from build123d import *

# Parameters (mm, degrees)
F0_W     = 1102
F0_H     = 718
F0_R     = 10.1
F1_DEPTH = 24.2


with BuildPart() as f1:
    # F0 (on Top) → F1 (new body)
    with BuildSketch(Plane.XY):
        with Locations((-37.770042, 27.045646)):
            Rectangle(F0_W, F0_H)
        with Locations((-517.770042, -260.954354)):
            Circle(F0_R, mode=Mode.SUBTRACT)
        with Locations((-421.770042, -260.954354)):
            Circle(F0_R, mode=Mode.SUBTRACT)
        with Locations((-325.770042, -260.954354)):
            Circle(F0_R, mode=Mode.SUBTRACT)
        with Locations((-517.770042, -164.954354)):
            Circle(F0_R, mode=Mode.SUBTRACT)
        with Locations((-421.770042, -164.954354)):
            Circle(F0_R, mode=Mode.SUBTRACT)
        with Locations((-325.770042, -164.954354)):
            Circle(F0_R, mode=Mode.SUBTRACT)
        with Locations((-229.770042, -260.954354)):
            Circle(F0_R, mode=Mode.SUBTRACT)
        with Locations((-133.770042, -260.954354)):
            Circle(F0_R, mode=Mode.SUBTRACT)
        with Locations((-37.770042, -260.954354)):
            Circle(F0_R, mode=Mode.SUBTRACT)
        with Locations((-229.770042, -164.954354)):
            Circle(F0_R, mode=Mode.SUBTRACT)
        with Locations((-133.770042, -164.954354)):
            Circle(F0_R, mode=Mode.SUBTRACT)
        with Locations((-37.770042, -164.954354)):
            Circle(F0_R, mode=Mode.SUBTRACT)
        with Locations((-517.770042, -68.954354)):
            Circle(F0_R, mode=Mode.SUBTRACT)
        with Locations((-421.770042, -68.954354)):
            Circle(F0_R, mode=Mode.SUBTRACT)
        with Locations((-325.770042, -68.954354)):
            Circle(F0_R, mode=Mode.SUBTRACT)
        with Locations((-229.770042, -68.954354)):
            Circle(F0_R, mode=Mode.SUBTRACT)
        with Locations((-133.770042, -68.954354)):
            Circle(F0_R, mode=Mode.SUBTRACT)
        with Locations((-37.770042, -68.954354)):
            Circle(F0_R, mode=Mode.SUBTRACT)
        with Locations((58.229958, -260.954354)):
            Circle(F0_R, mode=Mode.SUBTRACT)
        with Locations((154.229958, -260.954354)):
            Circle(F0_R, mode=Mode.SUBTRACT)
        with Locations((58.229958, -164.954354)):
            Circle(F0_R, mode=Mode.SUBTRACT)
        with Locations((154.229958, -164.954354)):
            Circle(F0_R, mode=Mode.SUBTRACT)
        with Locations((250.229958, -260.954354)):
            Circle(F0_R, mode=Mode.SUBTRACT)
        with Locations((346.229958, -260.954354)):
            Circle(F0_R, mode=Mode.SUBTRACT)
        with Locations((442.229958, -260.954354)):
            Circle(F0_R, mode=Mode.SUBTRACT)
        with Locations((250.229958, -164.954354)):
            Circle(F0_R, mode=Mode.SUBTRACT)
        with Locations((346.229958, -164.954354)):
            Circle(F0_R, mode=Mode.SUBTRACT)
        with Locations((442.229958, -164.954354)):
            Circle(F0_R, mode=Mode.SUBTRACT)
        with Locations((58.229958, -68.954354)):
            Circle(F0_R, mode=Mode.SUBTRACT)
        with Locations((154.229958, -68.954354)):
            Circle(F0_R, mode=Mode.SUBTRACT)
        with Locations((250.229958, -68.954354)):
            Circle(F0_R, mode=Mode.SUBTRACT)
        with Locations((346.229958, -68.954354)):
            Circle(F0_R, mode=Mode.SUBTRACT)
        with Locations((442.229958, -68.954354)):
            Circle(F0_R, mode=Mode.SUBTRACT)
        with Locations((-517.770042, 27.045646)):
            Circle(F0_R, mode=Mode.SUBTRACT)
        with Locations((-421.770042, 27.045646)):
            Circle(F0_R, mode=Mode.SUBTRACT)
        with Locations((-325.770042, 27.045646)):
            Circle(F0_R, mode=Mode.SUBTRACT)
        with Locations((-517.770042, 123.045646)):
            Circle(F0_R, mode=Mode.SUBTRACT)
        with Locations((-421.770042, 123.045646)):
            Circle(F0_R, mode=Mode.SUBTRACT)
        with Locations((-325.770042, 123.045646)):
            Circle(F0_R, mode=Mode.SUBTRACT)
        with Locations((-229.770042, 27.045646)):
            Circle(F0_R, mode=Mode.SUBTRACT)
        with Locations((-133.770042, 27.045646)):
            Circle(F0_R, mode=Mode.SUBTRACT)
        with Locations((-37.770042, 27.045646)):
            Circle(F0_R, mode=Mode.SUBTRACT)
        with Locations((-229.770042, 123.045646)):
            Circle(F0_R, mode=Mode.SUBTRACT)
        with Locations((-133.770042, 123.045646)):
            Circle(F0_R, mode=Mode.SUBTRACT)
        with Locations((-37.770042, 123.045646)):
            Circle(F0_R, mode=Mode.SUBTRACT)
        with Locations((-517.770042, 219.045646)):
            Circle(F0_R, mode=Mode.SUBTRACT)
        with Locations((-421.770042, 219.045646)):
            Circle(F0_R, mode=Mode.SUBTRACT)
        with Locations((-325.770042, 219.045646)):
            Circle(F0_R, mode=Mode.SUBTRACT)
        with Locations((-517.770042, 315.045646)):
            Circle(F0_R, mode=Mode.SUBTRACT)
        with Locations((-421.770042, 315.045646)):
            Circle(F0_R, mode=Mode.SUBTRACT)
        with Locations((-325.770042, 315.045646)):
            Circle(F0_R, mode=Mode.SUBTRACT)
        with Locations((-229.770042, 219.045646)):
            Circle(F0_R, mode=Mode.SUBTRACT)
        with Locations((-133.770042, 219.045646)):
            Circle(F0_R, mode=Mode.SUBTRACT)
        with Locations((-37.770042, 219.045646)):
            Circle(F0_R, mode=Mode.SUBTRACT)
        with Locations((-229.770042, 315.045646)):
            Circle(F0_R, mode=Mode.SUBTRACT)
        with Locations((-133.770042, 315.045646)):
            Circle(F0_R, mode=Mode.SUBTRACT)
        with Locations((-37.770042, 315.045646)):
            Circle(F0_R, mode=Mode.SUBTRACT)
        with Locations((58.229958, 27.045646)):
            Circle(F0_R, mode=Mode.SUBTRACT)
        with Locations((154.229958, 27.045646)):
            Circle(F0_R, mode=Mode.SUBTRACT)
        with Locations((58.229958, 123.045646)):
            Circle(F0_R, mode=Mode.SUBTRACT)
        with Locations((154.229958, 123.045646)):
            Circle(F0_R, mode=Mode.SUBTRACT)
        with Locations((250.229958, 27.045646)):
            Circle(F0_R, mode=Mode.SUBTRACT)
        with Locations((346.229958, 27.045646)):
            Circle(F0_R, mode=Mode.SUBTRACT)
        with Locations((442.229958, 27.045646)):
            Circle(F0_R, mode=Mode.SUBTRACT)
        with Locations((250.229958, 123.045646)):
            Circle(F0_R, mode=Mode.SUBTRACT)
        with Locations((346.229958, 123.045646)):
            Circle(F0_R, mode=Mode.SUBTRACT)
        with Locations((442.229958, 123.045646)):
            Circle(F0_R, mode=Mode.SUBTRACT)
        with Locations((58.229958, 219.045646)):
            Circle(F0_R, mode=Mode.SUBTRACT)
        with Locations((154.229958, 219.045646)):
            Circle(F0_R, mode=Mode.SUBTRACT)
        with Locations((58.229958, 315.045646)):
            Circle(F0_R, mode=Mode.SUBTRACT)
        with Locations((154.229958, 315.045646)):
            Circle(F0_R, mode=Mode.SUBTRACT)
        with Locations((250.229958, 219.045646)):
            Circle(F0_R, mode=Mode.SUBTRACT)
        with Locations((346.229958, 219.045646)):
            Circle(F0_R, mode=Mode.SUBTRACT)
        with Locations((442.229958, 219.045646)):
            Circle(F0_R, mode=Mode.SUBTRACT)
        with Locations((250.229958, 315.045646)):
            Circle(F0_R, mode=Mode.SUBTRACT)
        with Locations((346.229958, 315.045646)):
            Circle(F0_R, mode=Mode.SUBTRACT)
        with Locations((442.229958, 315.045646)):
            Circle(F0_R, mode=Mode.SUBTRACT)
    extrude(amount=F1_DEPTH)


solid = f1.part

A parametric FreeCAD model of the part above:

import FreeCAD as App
import Part
import Sketcher
Q = App.Units.Quantity

doc = App.newDocument("Part")
body = doc.addObject("PartDesign::Body", "Body")

# Sketch on XY plane
sketch1 = body.newObject("Sketcher::SketchObject", "Sketch")
sketch1.AttachmentSupport = (doc.getObject("XY_Plane"), [""])
sketch1.MapMode = "FlatFace"
sketch1.addGeometry([
    Part.LineSegment(App.Vector(-588.770042, 386.045646, 0), App.Vector(-588.770042, -331.954354, 0)),  # 0
    Part.LineSegment(App.Vector(-588.770042, -331.954354, 0), App.Vector(513.229958, -331.954354, 0)),  # 1
    Part.LineSegment(App.Vector(513.229958, -331.954354, 0), App.Vector(513.229958, 386.045646, 0)),  # 2
    Part.LineSegment(App.Vector(513.229958, 386.045646, 0), App.Vector(-588.770042, 386.045646, 0)),  # 3
    Part.Circle(App.Vector(-517.770042, -260.954354, 0), App.Vector(0, 0, 1), 10.1),  # 4
    Part.Circle(App.Vector(-421.770042, -260.954354, 0), App.Vector(0, 0, 1), 10.1),  # 5
    Part.Circle(App.Vector(-325.770042, -260.954354, 0), App.Vector(0, 0, 1), 10.1),  # 6
    Part.Circle(App.Vector(-517.770042, -164.954354, 0), App.Vector(0, 0, 1), 10.1),  # 7
    Part.Circle(App.Vector(-421.770042, -164.954354, 0), App.Vector(0, 0, 1), 10.1),  # 8
    Part.Circle(App.Vector(-325.770042, -164.954354, 0), App.Vector(0, 0, 1), 10.1),  # 9
    Part.Circle(App.Vector(-229.770042, -260.954354, 0), App.Vector(0, 0, 1), 10.1),  # 10
    Part.Circle(App.Vector(-133.770042, -260.954354, 0), App.Vector(0, 0, 1), 10.1),  # 11
    Part.Circle(App.Vector(-37.770042, -260.954354, 0), App.Vector(0, 0, 1), 10.1),  # 12
    Part.Circle(App.Vector(-229.770042, -164.954354, 0), App.Vector(0, 0, 1), 10.1),  # 13
    Part.Circle(App.Vector(-133.770042, -164.954354, 0), App.Vector(0, 0, 1), 10.1),  # 14
    Part.Circle(App.Vector(-37.770042, -164.954354, 0), App.Vector(0, 0, 1), 10.1),  # 15
    Part.Circle(App.Vector(-517.770042, -68.954354, 0), App.Vector(0, 0, 1), 10.1),  # 16
    Part.Circle(App.Vector(-421.770042, -68.954354, 0), App.Vector(0, 0, 1), 10.1),  # 17
    Part.Circle(App.Vector(-325.770042, -68.954354, 0), App.Vector(0, 0, 1), 10.1),  # 18
    Part.Circle(App.Vector(-229.770042, -68.954354, 0), App.Vector(0, 0, 1), 10.1),  # 19
    Part.Circle(App.Vector(-133.770042, -68.954354, 0), App.Vector(0, 0, 1), 10.1),  # 20
    Part.Circle(App.Vector(-37.770042, -68.954354, 0), App.Vector(0, 0, 1), 10.1),  # 21
    Part.Circle(App.Vector(58.229958, -260.954354, 0), App.Vector(0, 0, 1), 10.1),  # 22
    Part.Circle(App.Vector(154.229958, -260.954354, 0), App.Vector(0, 0, 1), 10.1),  # 23
    Part.Circle(App.Vector(58.229958, -164.954354, 0), App.Vector(0, 0, 1), 10.1),  # 24
    Part.Circle(App.Vector(154.229958, -164.954354, 0), App.Vector(0, 0, 1), 10.1),  # 25
    Part.Circle(App.Vector(250.229958, -260.954354, 0), App.Vector(0, 0, 1), 10.1),  # 26
    Part.Circle(App.Vector(346.229958, -260.954354, 0), App.Vector(0, 0, 1), 10.1),  # 27
    Part.Circle(App.Vector(442.229958, -260.954354, 0), App.Vector(0, 0, 1), 10.1),  # 28
    Part.Circle(App.Vector(250.229958, -164.954354, 0), App.Vector(0, 0, 1), 10.1),  # 29
    Part.Circle(App.Vector(346.229958, -164.954354, 0), App.Vector(0, 0, 1), 10.1),  # 30
    Part.Circle(App.Vector(442.229958, -164.954354, 0), App.Vector(0, 0, 1), 10.1),  # 31
    Part.Circle(App.Vector(58.229958, -68.954354, 0), App.Vector(0, 0, 1), 10.1),  # 32
    Part.Circle(App.Vector(154.229958, -68.954354, 0), App.Vector(0, 0, 1), 10.1),  # 33
    Part.Circle(App.Vector(250.229958, -68.954354, 0), App.Vector(0, 0, 1), 10.1),  # 34
    Part.Circle(App.Vector(346.229958, -68.954354, 0), App.Vector(0, 0, 1), 10.1),  # 35
    Part.Circle(App.Vector(442.229958, -68.954354, 0), App.Vector(0, 0, 1), 10.1),  # 36
    Part.Circle(App.Vector(-517.770042, 27.045646, 0), App.Vector(0, 0, 1), 10.1),  # 37
    Part.Circle(App.Vector(-421.770042, 27.045646, 0), App.Vector(0, 0, 1), 10.1),  # 38
    Part.Circle(App.Vector(-325.770042, 27.045646, 0), App.Vector(0, 0, 1), 10.1),  # 39
    Part.Circle(App.Vector(-517.770042, 123.045646, 0), App.Vector(0, 0, 1), 10.1),  # 40
    Part.Circle(App.Vector(-421.770042, 123.045646, 0), App.Vector(0, 0, 1), 10.1),  # 41
    Part.Circle(App.Vector(-325.770042, 123.045646, 0), App.Vector(0, 0, 1), 10.1),  # 42
    Part.Circle(App.Vector(-229.770042, 27.045646, 0), App.Vector(0, 0, 1), 10.1),  # 43
    Part.Circle(App.Vector(-133.770042, 27.045646, 0), App.Vector(0, 0, 1), 10.1),  # 44
    Part.Circle(App.Vector(-37.770042, 27.045646, 0), App.Vector(0, 0, 1), 10.1),  # 45
    Part.Circle(App.Vector(-229.770042, 123.045646, 0), App.Vector(0, 0, 1), 10.1),  # 46
    Part.Circle(App.Vector(-133.770042, 123.045646, 0), App.Vector(0, 0, 1), 10.1),  # 47
    Part.Circle(App.Vector(-37.770042, 123.045646, 0), App.Vector(0, 0, 1), 10.1),  # 48
    Part.Circle(App.Vector(-517.770042, 219.045646, 0), App.Vector(0, 0, 1), 10.1),  # 49
    Part.Circle(App.Vector(-421.770042, 219.045646, 0), App.Vector(0, 0, 1), 10.1),  # 50
    Part.Circle(App.Vector(-325.770042, 219.045646, 0), App.Vector(0, 0, 1), 10.1),  # 51
    Part.Circle(App.Vector(-517.770042, 315.045646, 0), App.Vector(0, 0, 1), 10.1),  # 52
    Part.Circle(App.Vector(-421.770042, 315.045646, 0), App.Vector(0, 0, 1), 10.1),  # 53
    Part.Circle(App.Vector(-325.770042, 315.045646, 0), App.Vector(0, 0, 1), 10.1),  # 54
    Part.Circle(App.Vector(-229.770042, 219.045646, 0), App.Vector(0, 0, 1), 10.1),  # 55
    Part.Circle(App.Vector(-133.770042, 219.045646, 0), App.Vector(0, 0, 1), 10.1),  # 56
    Part.Circle(App.Vector(-37.770042, 219.045646, 0), App.Vector(0, 0, 1), 10.1),  # 57
    Part.Circle(App.Vector(-229.770042, 315.045646, 0), App.Vector(0, 0, 1), 10.1),  # 58
    Part.Circle(App.Vector(-133.770042, 315.045646, 0), App.Vector(0, 0, 1), 10.1),  # 59
    Part.Circle(App.Vector(-37.770042, 315.045646, 0), App.Vector(0, 0, 1), 10.1),  # 60
    Part.Circle(App.Vector(58.229958, 27.045646, 0), App.Vector(0, 0, 1), 10.1),  # 61
    Part.Circle(App.Vector(154.229958, 27.045646, 0), App.Vector(0, 0, 1), 10.1),  # 62
    Part.Circle(App.Vector(58.229958, 123.045646, 0), App.Vector(0, 0, 1), 10.1),  # 63
    Part.Circle(App.Vector(154.229958, 123.045646, 0), App.Vector(0, 0, 1), 10.1),  # 64
    Part.Circle(App.Vector(250.229958, 27.045646, 0), App.Vector(0, 0, 1), 10.1),  # 65
    Part.Circle(App.Vector(346.229958, 27.045646, 0), App.Vector(0, 0, 1), 10.1),  # 66
    Part.Circle(App.Vector(442.229958, 27.045646, 0), App.Vector(0, 0, 1), 10.1),  # 67
    Part.Circle(App.Vector(250.229958, 123.045646, 0), App.Vector(0, 0, 1), 10.1),  # 68
    Part.Circle(App.Vector(346.229958, 123.045646, 0), App.Vector(0, 0, 1), 10.1),  # 69
    Part.Circle(App.Vector(442.229958, 123.045646, 0), App.Vector(0, 0, 1), 10.1),  # 70
    Part.Circle(App.Vector(58.229958, 219.045646, 0), App.Vector(0, 0, 1), 10.1),  # 71
    Part.Circle(App.Vector(154.229958, 219.045646, 0), App.Vector(0, 0, 1), 10.1),  # 72
    Part.Circle(App.Vector(58.229958, 315.045646, 0), App.Vector(0, 0, 1), 10.1),  # 73
    Part.Circle(App.Vector(154.229958, 315.045646, 0), App.Vector(0, 0, 1), 10.1),  # 74
    Part.Circle(App.Vector(250.229958, 219.045646, 0), App.Vector(0, 0, 1), 10.1),  # 75
    Part.Circle(App.Vector(346.229958, 219.045646, 0), App.Vector(0, 0, 1), 10.1),  # 76
    Part.Circle(App.Vector(442.229958, 219.045646, 0), App.Vector(0, 0, 1), 10.1),  # 77
    Part.Circle(App.Vector(250.229958, 315.045646, 0), App.Vector(0, 0, 1), 10.1),  # 78
    Part.Circle(App.Vector(346.229958, 315.045646, 0), App.Vector(0, 0, 1), 10.1),  # 79
    Part.Circle(App.Vector(442.229958, 315.045646, 0), App.Vector(0, 0, 1), 10.1),  # 80
], False)
sketch1.addConstraint([
    Sketcher.Constraint("Coincident", 0, 2, 1, 1),
    Sketcher.Constraint("Coincident", 1, 2, 2, 1),
    Sketcher.Constraint("Coincident", 2, 2, 3, 1),
    Sketcher.Constraint("Coincident", 3, 2, 0, 1),
    Sketcher.Constraint("Vertical", 0),
    Sketcher.Constraint("Horizontal", 1),
    Sketcher.Constraint("Vertical", 2),
    Sketcher.Constraint("Horizontal", 3),
    Sketcher.Constraint("Equal", 4, 5),
    Sketcher.Constraint("Equal", 5, 6),
    Sketcher.Constraint("Equal", 6, 7),
    Sketcher.Constraint("Equal", 7, 8),
    Sketcher.Constraint("Equal", 8, 9),
    Sketcher.Constraint("Equal", 9, 10),
    Sketcher.Constraint("Equal", 10, 11),
    Sketcher.Constraint("Equal", 11, 12),
    Sketcher.Constraint("Equal", 12, 13),
    Sketcher.Constraint("Equal", 13, 14),
    Sketcher.Constraint("Equal", 14, 15),
    Sketcher.Constraint("Equal", 15, 16),
    Sketcher.Constraint("Equal", 16, 17),
    Sketcher.Constraint("Equal", 17, 18),
    Sketcher.Constraint("Equal", 18, 19),
    Sketcher.Constraint("Equal", 19, 20),
    Sketcher.Constraint("Equal", 20, 21),
    Sketcher.Constraint("Equal", 21, 22),
    Sketcher.Constraint("Equal", 22, 23),
    Sketcher.Constraint("Equal", 23, 24),
    Sketcher.Constraint("Equal", 24, 25),
    Sketcher.Constraint("Equal", 25, 26),
    Sketcher.Constraint("Equal", 26, 27),
    Sketcher.Constraint("Equal", 27, 28),
    Sketcher.Constraint("Equal", 28, 29),
    Sketcher.Constraint("Equal", 29, 30),
    Sketcher.Constraint("Equal", 30, 31),
    Sketcher.Constraint("Equal", 31, 32),
    Sketcher.Constraint("Equal", 32, 33),
    Sketcher.Constraint("Equal", 33, 34),
    Sketcher.Constraint("Equal", 34, 35),
    Sketcher.Constraint("Equal", 35, 36),
    Sketcher.Constraint("Equal", 36, 37),
    Sketcher.Constraint("Equal", 37, 38),
    Sketcher.Constraint("Equal", 38, 39),
    Sketcher.Constraint("Equal", 39, 40),
    Sketcher.Constraint("Equal", 40, 41),
    Sketcher.Constraint("Equal", 41, 42),
    Sketcher.Constraint("Equal", 42, 43),
    Sketcher.Constraint("Equal", 43, 44),
    Sketcher.Constraint("Equal", 44, 45),
    Sketcher.Constraint("Equal", 45, 46),
    Sketcher.Constraint("Equal", 46, 47),
    Sketcher.Constraint("Equal", 47, 48),
    Sketcher.Constraint("Equal", 48, 49),
    Sketcher.Constraint("Equal", 49, 50),
    Sketcher.Constraint("Equal", 50, 51),
    Sketcher.Constraint("Equal", 51, 52),
    Sketcher.Constraint("Equal", 52, 53),
    Sketcher.Constraint("Equal", 53, 54),
    Sketcher.Constraint("Equal", 54, 55),
    Sketcher.Constraint("Equal", 55, 56),
    Sketcher.Constraint("Equal", 56, 57),
    Sketcher.Constraint("Equal", 57, 58),
    Sketcher.Constraint("Equal", 58, 59),
    Sketcher.Constraint("Equal", 59, 60),
    Sketcher.Constraint("Equal", 60, 61),
    Sketcher.Constraint("Equal", 61, 62),
    Sketcher.Constraint("Equal", 62, 63),
    Sketcher.Constraint("Equal", 63, 64),
    Sketcher.Constraint("Equal", 64, 65),
    Sketcher.Constraint("Equal", 65, 66),
    Sketcher.Constraint("Equal", 66, 67),
    Sketcher.Constraint("Equal", 67, 68),
    Sketcher.Constraint("Equal", 68, 69),
    Sketcher.Constraint("Equal", 69, 70),
    Sketcher.Constraint("Equal", 70, 71),
    Sketcher.Constraint("Equal", 71, 72),
    Sketcher.Constraint("Equal", 72, 73),
    Sketcher.Constraint("Equal", 73, 74),
    Sketcher.Constraint("Equal", 74, 75),
    Sketcher.Constraint("Equal", 75, 76),
    Sketcher.Constraint("Equal", 76, 77),
    Sketcher.Constraint("Equal", 77, 78),
    Sketcher.Constraint("Equal", 78, 79),
    Sketcher.Constraint("Equal", 79, 80),
    Sketcher.Constraint("Horizontal", 4, 3, 5, 3),
    Sketcher.Constraint("Horizontal", 5, 3, 6, 3),
    Sketcher.Constraint("Horizontal", 7, 3, 8, 3),
    Sketcher.Constraint("Horizontal", 8, 3, 9, 3),
    Sketcher.Constraint("Horizontal", 6, 3, 10, 3),
    Sketcher.Constraint("Horizontal", 10, 3, 11, 3),
    Sketcher.Constraint("Horizontal", 11, 3, 12, 3),
    Sketcher.Constraint("Horizontal", 9, 3, 13, 3),
    Sketcher.Constraint("Horizontal", 13, 3, 14, 3),
    Sketcher.Constraint("Horizontal", 14, 3, 15, 3),
    Sketcher.Constraint("Horizontal", 16, 3, 17, 3),
    Sketcher.Constraint("Horizontal", 17, 3, 18, 3),
    Sketcher.Constraint("Horizontal", 18, 3, 19, 3),
    Sketcher.Constraint("Horizontal", 19, 3, 20, 3),
    Sketcher.Constraint("Horizontal", 20, 3, 21, 3),
    Sketcher.Constraint("Horizontal", 12, 3, 22, 3),
    Sketcher.Constraint("Horizontal", 22, 3, 23, 3),
    Sketcher.Constraint("Horizontal", 15, 3, 24, 3),
    Sketcher.Constraint("Horizontal", 24, 3, 25, 3),
    Sketcher.Constraint("Horizontal", 23, 3, 26, 3),
    Sketcher.Constraint("Horizontal", 26, 3, 27, 3),
    Sketcher.Constraint("Horizontal", 27, 3, 28, 3),
    Sketcher.Constraint("Horizontal", 25, 3, 29, 3),
    Sketcher.Constraint("Horizontal", 29, 3, 30, 3),
    Sketcher.Constraint("Horizontal", 30, 3, 31, 3),
    Sketcher.Constraint("Horizontal", 21, 3, 32, 3),
    Sketcher.Constraint("Horizontal", 32, 3, 33, 3),
    Sketcher.Constraint("Horizontal", 33, 3, 34, 3),
    Sketcher.Constraint("Horizontal", 34, 3, 35, 3),
    Sketcher.Constraint("Horizontal", 35, 3, 36, 3),
    Sketcher.Constraint("Horizontal", 37, 3, 38, 3),
    Sketcher.Constraint("Horizontal", 38, 3, 39, 3),
    Sketcher.Constraint("Horizontal", 40, 3, 41, 3),
    Sketcher.Constraint("Horizontal", 41, 3, 42, 3),
    Sketcher.Constraint("Horizontal", 39, 3, 43, 3),
    Sketcher.Constraint("Horizontal", 43, 3, 44, 3),
    Sketcher.Constraint("Horizontal", 44, 3, 45, 3),
    Sketcher.Constraint("Horizontal", 42, 3, 46, 3),
    Sketcher.Constraint("Horizontal", 46, 3, 47, 3),
    Sketcher.Constraint("Horizontal", 47, 3, 48, 3),
    Sketcher.Constraint("Horizontal", 49, 3, 50, 3),
    Sketcher.Constraint("Horizontal", 50, 3, 51, 3),
    Sketcher.Constraint("Horizontal", 52, 3, 53, 3),
    Sketcher.Constraint("Horizontal", 53, 3, 54, 3),
    Sketcher.Constraint("Horizontal", 51, 3, 55, 3),
    Sketcher.Constraint("Horizontal", 55, 3, 56, 3),
    Sketcher.Constraint("Horizontal", 56, 3, 57, 3),
    Sketcher.Constraint("Horizontal", 54, 3, 58, 3),
    Sketcher.Constraint("Horizontal", 58, 3, 59, 3),
    Sketcher.Constraint("Horizontal", 59, 3, 60, 3),
    Sketcher.Constraint("Horizontal", 45, 3, 61, 3),
    Sketcher.Constraint("Horizontal", 61, 3, 62, 3),
    Sketcher.Constraint("Horizontal", 48, 3, 63, 3),
    Sketcher.Constraint("Horizontal", 63, 3, 64, 3),
    Sketcher.Constraint("Horizontal", 62, 3, 65, 3),
    Sketcher.Constraint("Horizontal", 65, 3, 66, 3),
    Sketcher.Constraint("Horizontal", 66, 3, 67, 3),
    Sketcher.Constraint("Horizontal", 64, 3, 68, 3),
    Sketcher.Constraint("Horizontal", 68, 3, 69, 3),
    Sketcher.Constraint("Horizontal", 69, 3, 70, 3),
    Sketcher.Constraint("Horizontal", 57, 3, 71, 3),
    Sketcher.Constraint("Horizontal", 71, 3, 72, 3),
    Sketcher.Constraint("Horizontal", 60, 3, 73, 3),
    Sketcher.Constraint("Horizontal", 73, 3, 74, 3),
    Sketcher.Constraint("Horizontal", 72, 3, 75, 3),
    Sketcher.Constraint("Horizontal", 75, 3, 76, 3),
    Sketcher.Constraint("Horizontal", 76, 3, 77, 3),
    Sketcher.Constraint("Horizontal", 74, 3, 78, 3),
    Sketcher.Constraint("Horizontal", 78, 3, 79, 3),
    Sketcher.Constraint("Horizontal", 79, 3, 80, 3),
    Sketcher.Constraint("Vertical", 4, 3, 7, 3),
    Sketcher.Constraint("Vertical", 5, 3, 8, 3),
    Sketcher.Constraint("Vertical", 6, 3, 9, 3),
    Sketcher.Constraint("Vertical", 10, 3, 13, 3),
    Sketcher.Constraint("Vertical", 11, 3, 14, 3),
    Sketcher.Constraint("Vertical", 12, 3, 15, 3),
    Sketcher.Constraint("Vertical", 7, 3, 16, 3),
    Sketcher.Constraint("Vertical", 8, 3, 17, 3),
    Sketcher.Constraint("Vertical", 9, 3, 18, 3),
    Sketcher.Constraint("Vertical", 13, 3, 19, 3),
    Sketcher.Constraint("Vertical", 14, 3, 20, 3),
    Sketcher.Constraint("Vertical", 15, 3, 21, 3),
    Sketcher.Constraint("Vertical", 22, 3, 24, 3),
    Sketcher.Constraint("Vertical", 23, 3, 25, 3),
    Sketcher.Constraint("Vertical", 26, 3, 29, 3),
    Sketcher.Constraint("Vertical", 27, 3, 30, 3),
    Sketcher.Constraint("Vertical", 28, 3, 31, 3),
    Sketcher.Constraint("Vertical", 24, 3, 32, 3),
    Sketcher.Constraint("Vertical", 25, 3, 33, 3),
    Sketcher.Constraint("Vertical", 29, 3, 34, 3),
    Sketcher.Constraint("Vertical", 30, 3, 35, 3),
    Sketcher.Constraint("Vertical", 31, 3, 36, 3),
    Sketcher.Constraint("Vertical", 16, 3, 37, 3),
    Sketcher.Constraint("Vertical", 17, 3, 38, 3),
    Sketcher.Constraint("Vertical", 18, 3, 39, 3),
    Sketcher.Constraint("Vertical", 37, 3, 40, 3),
    Sketcher.Constraint("Vertical", 38, 3, 41, 3),
    Sketcher.Constraint("Vertical", 39, 3, 42, 3),
    Sketcher.Constraint("Vertical", 19, 3, 43, 3),
    Sketcher.Constraint("Vertical", 20, 3, 44, 3),
    Sketcher.Constraint("Vertical", 21, 3, 45, 3),
    Sketcher.Constraint("Vertical", 43, 3, 46, 3),
    Sketcher.Constraint("Vertical", 44, 3, 47, 3),
    Sketcher.Constraint("Vertical", 45, 3, 48, 3),
    Sketcher.Constraint("Vertical", 40, 3, 49, 3),
    Sketcher.Constraint("Vertical", 41, 3, 50, 3),
    Sketcher.Constraint("Vertical", 42, 3, 51, 3),
    Sketcher.Constraint("Vertical", 49, 3, 52, 3),
    Sketcher.Constraint("Vertical", 50, 3, 53, 3),
    Sketcher.Constraint("Vertical", 51, 3, 54, 3),
    Sketcher.Constraint("Vertical", 46, 3, 55, 3),
    Sketcher.Constraint("Vertical", 47, 3, 56, 3),
    Sketcher.Constraint("Vertical", 48, 3, 57, 3),
    Sketcher.Constraint("Vertical", 55, 3, 58, 3),
    Sketcher.Constraint("Vertical", 56, 3, 59, 3),
    Sketcher.Constraint("Vertical", 57, 3, 60, 3),
    Sketcher.Constraint("Vertical", 32, 3, 61, 3),
    Sketcher.Constraint("Vertical", 33, 3, 62, 3),
    Sketcher.Constraint("Vertical", 61, 3, 63, 3),
    Sketcher.Constraint("Vertical", 62, 3, 64, 3),
    Sketcher.Constraint("Vertical", 34, 3, 65, 3),
    Sketcher.Constraint("Vertical", 35, 3, 66, 3),
    Sketcher.Constraint("Vertical", 36, 3, 67, 3),
    Sketcher.Constraint("Vertical", 65, 3, 68, 3),
    Sketcher.Constraint("Vertical", 66, 3, 69, 3),
    Sketcher.Constraint("Vertical", 67, 3, 70, 3),
    Sketcher.Constraint("Vertical", 63, 3, 71, 3),
    Sketcher.Constraint("Vertical", 64, 3, 72, 3),
    Sketcher.Constraint("Vertical", 71, 3, 73, 3),
    Sketcher.Constraint("Vertical", 72, 3, 74, 3),
    Sketcher.Constraint("Vertical", 68, 3, 75, 3),
    Sketcher.Constraint("Vertical", 69, 3, 76, 3),
    Sketcher.Constraint("Vertical", 70, 3, 77, 3),
    Sketcher.Constraint("Vertical", 75, 3, 78, 3),
    Sketcher.Constraint("Vertical", 76, 3, 79, 3),
    Sketcher.Constraint("Vertical", 77, 3, 80, 3),
    Sketcher.Constraint("Diameter", 4, Q("20.2 mm")),
    Sketcher.Constraint("DistanceX", 1, 1, 1, 2, Q("1102 mm")),
    Sketcher.Constraint("DistanceY", 0, 2, 0, 1, Q("718 mm")),
    Sketcher.Constraint("DistanceX", 4, 3, -1, 1, Q("517.770042 mm")),
    Sketcher.Constraint("DistanceX", 5, 3, -1, 1, Q("421.770042 mm")),
    Sketcher.Constraint("DistanceX", 6, 3, -1, 1, Q("325.770042 mm")),
    Sketcher.Constraint("DistanceX", 10, 3, -1, 1, Q("229.770042 mm")),
    Sketcher.Constraint("DistanceX", 11, 3, -1, 1, Q("133.770042 mm")),
    Sketcher.Constraint("DistanceX", 12, 3, -1, 1, Q("37.770042 mm")),
    Sketcher.Constraint("DistanceX", -1, 1, 22, 3, Q("58.229958 mm")),
    Sketcher.Constraint("DistanceX", -1, 1, 23, 3, Q("154.229958 mm")),
    Sketcher.Constraint("DistanceX", -1, 1, 26, 3, Q("250.229958 mm")),
    Sketcher.Constraint("DistanceX", -1, 1, 27, 3, Q("346.229958 mm")),
    Sketcher.Constraint("DistanceX", -1, 1, 28, 3, Q("442.229958 mm")),
    Sketcher.Constraint("DistanceX", 0, 2, -1, 1, Q("588.770042 mm")),
    Sketcher.Constraint("DistanceY", 4, 3, -1, 1, Q("260.954354 mm")),
    Sketcher.Constraint("DistanceY", 7, 3, -1, 1, Q("164.954354 mm")),
    Sketcher.Constraint("DistanceY", 16, 3, -1, 1, Q("68.954354 mm")),
    Sketcher.Constraint("DistanceY", -1, 1, 37, 3, Q("27.045646 mm")),
    Sketcher.Constraint("DistanceY", -1, 1, 40, 3, Q("123.045646 mm")),
    Sketcher.Constraint("DistanceY", -1, 1, 49, 3, Q("219.045646 mm")),
    Sketcher.Constraint("DistanceY", -1, 1, 52, 3, Q("315.045646 mm")),
    Sketcher.Constraint("DistanceY", 0, 2, -1, 1, Q("331.954354 mm")),
])
pad1 = body.newObject("PartDesign::Pad", "Pad")
pad1.Profile = sketch1
pad1.Length = 24.2

doc.recompute()
